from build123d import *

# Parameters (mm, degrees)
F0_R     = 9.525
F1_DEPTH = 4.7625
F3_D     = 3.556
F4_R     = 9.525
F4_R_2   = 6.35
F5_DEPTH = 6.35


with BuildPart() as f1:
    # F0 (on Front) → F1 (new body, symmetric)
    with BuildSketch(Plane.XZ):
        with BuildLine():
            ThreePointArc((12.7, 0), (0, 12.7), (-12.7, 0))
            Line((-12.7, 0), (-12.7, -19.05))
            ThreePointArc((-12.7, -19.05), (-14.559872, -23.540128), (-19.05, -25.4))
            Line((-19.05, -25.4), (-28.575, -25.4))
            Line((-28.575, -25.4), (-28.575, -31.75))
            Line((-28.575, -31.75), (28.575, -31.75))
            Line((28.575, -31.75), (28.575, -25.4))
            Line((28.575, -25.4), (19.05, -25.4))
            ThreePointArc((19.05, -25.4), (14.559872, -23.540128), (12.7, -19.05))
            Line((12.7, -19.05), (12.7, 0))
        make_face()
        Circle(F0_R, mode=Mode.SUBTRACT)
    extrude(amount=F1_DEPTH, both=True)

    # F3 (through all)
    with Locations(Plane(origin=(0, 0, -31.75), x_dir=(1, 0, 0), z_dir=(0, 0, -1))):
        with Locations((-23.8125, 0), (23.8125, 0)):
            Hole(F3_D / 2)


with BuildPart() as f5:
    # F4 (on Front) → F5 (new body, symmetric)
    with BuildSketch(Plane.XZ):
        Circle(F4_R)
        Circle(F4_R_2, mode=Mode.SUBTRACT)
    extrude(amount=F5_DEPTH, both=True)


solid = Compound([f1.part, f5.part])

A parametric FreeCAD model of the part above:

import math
import FreeCAD as App
import Part
import Sketcher

V = App.Vector
Q = App.Units.Quantity

doc = App.newDocument("Part")
body = doc.addObject("PartDesign::Body", "Body")

sketch1 = doc.addObject("Sketcher::SketchObject", "Sketch")
body.addObject(sketch1)
sketch1.AttachmentSupport = (doc.XZ_Plane, [""])
sketch1.MapMode = "FlatFace"
sketch1.addGeometry(Part.ArcOfCircle(Part.Circle(V(0, 0, 0), V(0, 0, 1), 13), math.radians(0), math.radians(180)), False)
sketch1.addGeometry(Part.LineSegment(V(-13, 0, 0), V(-13, -19, 0)), False)
sketch1.addGeometry(Part.ArcOfCircle(Part.Circle(V(-19, -19, 0), V(0, 0, 1), 6), math.radians(-90), math.radians(0)), False)
sketch1.addGeometry(Part.LineSegment(V(-19, -25, 0), V(-29, -25, 0)), False)
sketch1.addGeometry(Part.LineSegment(V(-29, -25, 0), V(-29, -32, 0)), False)
sketch1.addGeometry(Part.LineSegment(V(-29, -32, 0), V(29, -32, 0)), False)
sketch1.addGeometry(Part.LineSegment(V(29, -32, 0), V(29, -25, 0)), False)
sketch1.addGeometry(Part.LineSegment(V(29, -25, 0), V(19, -25, 0)), False)
sketch1.addGeometry(Part.ArcOfCircle(Part.Circle(V(19, -19, 0), V(0, 0, 1), 6), math.radians(-180), math.radians(-90)), False)
sketch1.addGeometry(Part.LineSegment(V(13, -19, 0), V(13, 0, 0)), False)
sketch1.addGeometry(Part.Circle(V(0, 0, 0), V(0, 0, 1), 10), False)
sketch1.addConstraint(Sketcher.Constraint("Tangent", 0, 2, 1, 1))
sketch1.addConstraint(Sketcher.Constraint("Tangent", 1, 2, 2, 2))
sketch1.addConstraint(Sketcher.Constraint("Tangent", 2, 1, 3, 1))
sketch1.addConstraint(Sketcher.Constraint("Coincident", 3, 2, 4, 1))
sketch1.addConstraint(Sketcher.Constraint("Coincident", 4, 2, 5, 1))
sketch1.addConstraint(Sketcher.Constraint("Coincident", 5, 2, 6, 1))
sketch1.addConstraint(Sketcher.Constraint("Coincident", 6, 2, 7, 1))
sketch1.addConstraint(Sketcher.Constraint("Tangent", 7, 2, 8, 2))
sketch1.addConstraint(Sketcher.Constraint("Tangent", 8, 1, 9, 1))
sketch1.addConstraint(Sketcher.Constraint("Tangent", 9, 2, 0, 1))
sketch1.addConstraint(Sketcher.Constraint("Vertical", 1))
sketch1.addConstraint(Sketcher.Constraint("Horizontal", 3))
sketch1.addConstraint(Sketcher.Constraint("Vertical", 4))
sketch1.addConstraint(Sketcher.Constraint("Horizontal", 5))
sketch1.addConstraint(Sketcher.Constraint("Vertical", 6))
sketch1.addConstraint(Sketcher.Constraint("Horizontal", 7))
sketch1.addConstraint(Sketcher.Constraint("Vertical", 9))
sketch1.addConstraint(Sketcher.Constraint("Coincident", 0, 3, -1, 1))
sketch1.addConstraint(Sketcher.Constraint("Coincident", 10, 3, -1, 1))
sketch1.addConstraint(Sketcher.Constraint("Equal", 2, 8))
sketch1.addConstraint(Sketcher.Constraint("Symmetric", 3, 2, 6, 2, -2))
sketch1.addConstraint(Sketcher.Constraint("Radius", 0, Q("0.5 in")))
sketch1.addConstraint(Sketcher.Constraint("Diameter", 10, Q("0.75 in")))
sketch1.addConstraint(Sketcher.Constraint("Radius", 2, Q("0.25 in")))
sketch1.addConstraint(Sketcher.Constraint("DistanceY", 2, 1, -1, 1, Q("1 in")))
sketch1.addConstraint(Sketcher.Constraint("DistanceX", 5, 1, 5, 2, Q("2.25 in")))
sketch1.addConstraint(Sketcher.Constraint("DistanceY", 4, 2, 4, 1, Q("0.25 in")))
pad1 = doc.addObject("PartDesign::Pad", "Pad")
body.addObject(pad1)
pad1.Profile = sketch1
pad1.Length = Q("0.375 in")
pad1.Midplane = True

sketch2 = doc.addObject("Sketcher::SketchObject", "Sketch001")
body.addObject(sketch2)
sketch2.AttachmentSupport = (doc.XY_Plane, [""])
sketch2.MapMode = "FlatFace"
sketch2.AttachmentOffset = App.Placement(V(0, 0, -1.25 * 25.4), App.Rotation())
sketch2.addGeometry(Part.Circle(V(-23.8, 0, 0), V(0, 0, 1), 1.8), False)
sketch2.addGeometry(Part.Circle(V(23.8, 0, 0), V(0, 0, 1), 1.8), False)
sketch2.addConstraint(Sketcher.Constraint("Equal", 0, 1))
sketch2.addConstraint(Sketcher.Constraint("Symmetric", 0, 3, 1, 3, -1, 1))
sketch2.addConstraint(Sketcher.Constraint("PointOnObject", 0, 3, -1))
sketch2.addConstraint(Sketcher.Constraint("Diameter", 0, Q("0.14 in")))
sketch2.addConstraint(Sketcher.Constraint("DistanceX", 0, 3, -1, 1, Q("0.9375 in")))
doc.recompute()
hole = doc.addObject("PartDesign::Hole", "Hole")
body.addObject(hole)
hole.Profile = sketch2
hole.ThreadType = "None"
hole.Diameter = Q("0.14 in")
hole.DepthType = "ThroughAll"
hole.Reversed = True
body2 = doc.addObject("PartDesign::Body", "Body001")

sketch3 = doc.addObject("Sketcher::SketchObject", "Sketch002")
body2.addObject(sketch3)
sketch3.AttachmentSupport = (doc.getObject("XZ_Plane001"), [""])
sketch3.MapMode = "FlatFace"
sketch3.addGeometry(Part.Circle(V(0, 0, 0), V(0, 0, 1), 10), False)
sketch3.addGeometry(Part.Circle(V(0, 0, 0), V(0, 0, 1), 6), False)
sketch3.addConstraint(Sketcher.Constraint("Coincident", 0, 3, -1, 1))
sketch3.addConstraint(Sketcher.Constraint("Coincident", 1, 3, -1, 1))
sketch3.addConstraint(Sketcher.Constraint("Diameter", 1, Q("0.5 in")))
sketch3.addConstraint(Sketcher.Constraint("Diameter", 0, Q("0.75 in")))
pad2 = doc.addObject("PartDesign::Pad", "Pad001")
body2.addObject(pad2)
pad2.Profile = sketch3
pad2.Length = Q("0.5 in")
pad2.Midplane = True

doc.recompute()
